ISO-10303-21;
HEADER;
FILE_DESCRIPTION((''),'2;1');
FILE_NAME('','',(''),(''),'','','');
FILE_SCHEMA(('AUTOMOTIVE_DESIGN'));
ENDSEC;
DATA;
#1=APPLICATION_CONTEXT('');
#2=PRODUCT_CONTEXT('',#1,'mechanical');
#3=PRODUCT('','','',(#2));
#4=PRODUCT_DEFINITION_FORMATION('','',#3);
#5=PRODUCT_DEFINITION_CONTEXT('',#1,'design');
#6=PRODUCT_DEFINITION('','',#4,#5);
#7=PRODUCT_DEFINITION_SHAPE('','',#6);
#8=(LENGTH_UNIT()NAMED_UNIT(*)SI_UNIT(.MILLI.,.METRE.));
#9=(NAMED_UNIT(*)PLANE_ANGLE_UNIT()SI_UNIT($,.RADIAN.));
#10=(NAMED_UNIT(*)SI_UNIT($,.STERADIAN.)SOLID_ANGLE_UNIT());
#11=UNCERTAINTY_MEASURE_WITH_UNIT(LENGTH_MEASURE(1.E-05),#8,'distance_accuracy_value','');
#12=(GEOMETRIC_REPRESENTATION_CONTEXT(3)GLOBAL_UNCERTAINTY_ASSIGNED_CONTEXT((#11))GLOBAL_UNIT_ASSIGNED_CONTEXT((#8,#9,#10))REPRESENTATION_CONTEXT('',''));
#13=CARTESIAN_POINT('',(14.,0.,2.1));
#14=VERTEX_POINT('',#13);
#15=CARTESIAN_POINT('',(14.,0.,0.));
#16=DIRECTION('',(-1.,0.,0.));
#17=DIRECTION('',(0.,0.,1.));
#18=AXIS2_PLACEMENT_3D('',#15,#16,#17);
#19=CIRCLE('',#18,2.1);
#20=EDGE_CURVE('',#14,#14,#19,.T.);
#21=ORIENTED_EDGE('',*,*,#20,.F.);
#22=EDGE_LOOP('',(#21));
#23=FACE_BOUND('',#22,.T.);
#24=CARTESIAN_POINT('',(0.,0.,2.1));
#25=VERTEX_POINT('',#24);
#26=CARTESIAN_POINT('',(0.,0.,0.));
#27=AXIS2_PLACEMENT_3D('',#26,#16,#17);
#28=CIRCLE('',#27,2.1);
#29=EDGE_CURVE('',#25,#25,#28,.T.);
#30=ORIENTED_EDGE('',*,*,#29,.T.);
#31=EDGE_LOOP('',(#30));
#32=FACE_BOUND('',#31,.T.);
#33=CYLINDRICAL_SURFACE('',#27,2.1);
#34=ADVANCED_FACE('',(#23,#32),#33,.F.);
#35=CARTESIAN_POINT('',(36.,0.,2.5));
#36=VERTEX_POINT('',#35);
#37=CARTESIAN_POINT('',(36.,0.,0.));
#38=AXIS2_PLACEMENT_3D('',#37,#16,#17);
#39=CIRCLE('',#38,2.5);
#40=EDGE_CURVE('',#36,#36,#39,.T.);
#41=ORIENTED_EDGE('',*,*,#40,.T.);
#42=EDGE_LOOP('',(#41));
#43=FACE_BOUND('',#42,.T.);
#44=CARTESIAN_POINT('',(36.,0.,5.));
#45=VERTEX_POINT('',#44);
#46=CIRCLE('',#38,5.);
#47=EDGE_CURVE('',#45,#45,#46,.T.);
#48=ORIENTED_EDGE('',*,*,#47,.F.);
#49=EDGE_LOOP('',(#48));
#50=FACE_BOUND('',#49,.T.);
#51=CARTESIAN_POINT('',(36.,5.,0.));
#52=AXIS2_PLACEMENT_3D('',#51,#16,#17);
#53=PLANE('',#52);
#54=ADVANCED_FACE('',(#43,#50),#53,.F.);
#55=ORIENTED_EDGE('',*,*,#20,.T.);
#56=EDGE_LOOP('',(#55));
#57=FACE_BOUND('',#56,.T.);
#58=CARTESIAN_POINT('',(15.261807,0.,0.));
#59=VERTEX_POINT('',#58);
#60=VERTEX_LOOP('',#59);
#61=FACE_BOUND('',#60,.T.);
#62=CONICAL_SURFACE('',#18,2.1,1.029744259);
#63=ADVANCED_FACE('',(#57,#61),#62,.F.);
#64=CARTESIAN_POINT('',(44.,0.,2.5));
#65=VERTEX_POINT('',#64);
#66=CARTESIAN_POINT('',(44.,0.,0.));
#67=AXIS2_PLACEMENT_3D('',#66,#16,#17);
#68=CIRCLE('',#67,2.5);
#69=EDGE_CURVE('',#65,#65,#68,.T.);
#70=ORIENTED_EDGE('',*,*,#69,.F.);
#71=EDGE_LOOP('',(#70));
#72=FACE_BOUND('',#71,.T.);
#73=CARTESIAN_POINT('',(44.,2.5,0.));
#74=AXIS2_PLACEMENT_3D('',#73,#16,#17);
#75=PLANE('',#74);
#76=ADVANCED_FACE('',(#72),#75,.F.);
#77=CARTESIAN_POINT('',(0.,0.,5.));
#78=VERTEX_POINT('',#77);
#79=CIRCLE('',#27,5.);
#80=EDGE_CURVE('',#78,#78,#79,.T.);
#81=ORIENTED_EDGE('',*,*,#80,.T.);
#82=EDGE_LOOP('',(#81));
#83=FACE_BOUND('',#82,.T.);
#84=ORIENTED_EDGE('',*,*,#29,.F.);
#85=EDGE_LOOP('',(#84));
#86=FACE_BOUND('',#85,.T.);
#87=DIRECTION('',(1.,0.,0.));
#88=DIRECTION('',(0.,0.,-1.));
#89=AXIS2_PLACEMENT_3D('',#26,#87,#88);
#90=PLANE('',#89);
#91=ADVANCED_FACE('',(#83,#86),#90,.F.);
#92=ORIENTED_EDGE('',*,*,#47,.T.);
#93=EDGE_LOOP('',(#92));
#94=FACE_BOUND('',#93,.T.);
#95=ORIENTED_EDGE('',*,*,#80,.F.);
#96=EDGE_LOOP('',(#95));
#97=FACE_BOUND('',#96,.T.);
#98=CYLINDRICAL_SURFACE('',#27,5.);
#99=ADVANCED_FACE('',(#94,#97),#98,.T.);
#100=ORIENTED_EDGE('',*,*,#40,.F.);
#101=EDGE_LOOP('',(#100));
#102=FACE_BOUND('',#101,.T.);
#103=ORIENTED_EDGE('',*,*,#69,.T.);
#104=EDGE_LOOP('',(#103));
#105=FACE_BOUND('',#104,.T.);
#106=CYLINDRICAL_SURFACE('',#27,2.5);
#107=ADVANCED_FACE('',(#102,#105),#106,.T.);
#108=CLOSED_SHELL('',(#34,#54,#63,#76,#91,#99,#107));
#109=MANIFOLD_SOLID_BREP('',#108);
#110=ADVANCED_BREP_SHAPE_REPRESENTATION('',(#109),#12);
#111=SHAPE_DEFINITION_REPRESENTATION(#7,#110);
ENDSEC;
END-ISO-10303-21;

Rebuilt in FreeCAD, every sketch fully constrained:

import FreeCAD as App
import Part
import Sketcher
from FreeCAD import Vector

doc = App.newDocument("Part")
body = doc.addObject("PartDesign::Body", "Body")

# Sketch on XY plane
sketch1 = body.newObject("Sketcher::SketchObject", "Sketch")
sketch1.AttachmentSupport = (doc.getObject("XY_Plane"), [""])
sketch1.MapMode = "FlatFace"
sketch1.addGeometry([
    Part.LineSegment(Vector(0, 5, 0), Vector(0, 0, 0)),  # 0
    Part.LineSegment(Vector(0, 0, 0), Vector(44, 0, 0)),  # 1
    Part.LineSegment(Vector(44, 0, 0), Vector(44, 2.5, 0)),  # 2
    Part.LineSegment(Vector(44, 2.5, 0), Vector(36, 2.5, 0)),  # 3
    Part.LineSegment(Vector(36, 2.5, 0), Vector(36, 5, 0)),  # 4
    Part.LineSegment(Vector(36, 5, 0), Vector(0, 5, 0)),  # 5
], False)
sketch1.addConstraint([
    Sketcher.Constraint("Coincident", 0, 2, 1, 1),
    Sketcher.Constraint("Coincident", 1, 2, 2, 1),
    Sketcher.Constraint("Coincident", 2, 2, 3, 1),
    Sketcher.Constraint("Coincident", 3, 2, 4, 1),
    Sketcher.Constraint("Coincident", 4, 2, 5, 1),
    Sketcher.Constraint("Coincident", 5, 2, 0, 1),
    Sketcher.Constraint("Vertical", 0),
    Sketcher.Constraint("Horizontal", 1),
    Sketcher.Constraint("Vertical", 2),
    Sketcher.Constraint("Horizontal", 3),
    Sketcher.Constraint("Vertical", 4),
    Sketcher.Constraint("Horizontal", 5),
    Sketcher.Constraint("Coincident", 0, 2, -1, 1),
    Sketcher.Constraint("Equal", 2, 4),
    Sketcher.Constraint("DistanceX", 1, 1, 1, 2, 44.0),
    Sketcher.Constraint("DistanceX", 3, 2, 3, 1, 8.0),
    Sketcher.Constraint("DistanceY", 0, 2, 0, 1, 5.0),
])
revolution = body.newObject("PartDesign::Revolution", "Revolution")
revolution.Profile = sketch1
revolution.ReferenceAxis = (sketch1, ["H_Axis"])
revolution.Angle = 360

# Sketch on YZ plane
sketch2 = body.newObject("Sketcher::SketchObject", "Sketch001")
sketch2.AttachmentSupport = (doc.getObject("YZ_Plane"), [""])
sketch2.MapMode = "FlatFace"
sketch2.addGeometry(Part.Circle(Vector(0, 0, 0), Vector(0, 0, 1), 2.1), False)
sketch2.addConstraint([
    Sketcher.Constraint("Coincident", 0, 3, -1, 1),
    Sketcher.Constraint("Diameter", 0, 4.2),
])
doc.recompute()
hole = body.newObject("PartDesign::Hole", "Hole")
hole.Profile = sketch2
hole.ThreadType = "None"
hole.Diameter = 4.2
hole.DepthType = "Dimension"
hole.Depth = 14
hole.DrillPoint = "Angled"
hole.DrillPointAngle = 118
hole.Reversed = True

doc.recompute()
